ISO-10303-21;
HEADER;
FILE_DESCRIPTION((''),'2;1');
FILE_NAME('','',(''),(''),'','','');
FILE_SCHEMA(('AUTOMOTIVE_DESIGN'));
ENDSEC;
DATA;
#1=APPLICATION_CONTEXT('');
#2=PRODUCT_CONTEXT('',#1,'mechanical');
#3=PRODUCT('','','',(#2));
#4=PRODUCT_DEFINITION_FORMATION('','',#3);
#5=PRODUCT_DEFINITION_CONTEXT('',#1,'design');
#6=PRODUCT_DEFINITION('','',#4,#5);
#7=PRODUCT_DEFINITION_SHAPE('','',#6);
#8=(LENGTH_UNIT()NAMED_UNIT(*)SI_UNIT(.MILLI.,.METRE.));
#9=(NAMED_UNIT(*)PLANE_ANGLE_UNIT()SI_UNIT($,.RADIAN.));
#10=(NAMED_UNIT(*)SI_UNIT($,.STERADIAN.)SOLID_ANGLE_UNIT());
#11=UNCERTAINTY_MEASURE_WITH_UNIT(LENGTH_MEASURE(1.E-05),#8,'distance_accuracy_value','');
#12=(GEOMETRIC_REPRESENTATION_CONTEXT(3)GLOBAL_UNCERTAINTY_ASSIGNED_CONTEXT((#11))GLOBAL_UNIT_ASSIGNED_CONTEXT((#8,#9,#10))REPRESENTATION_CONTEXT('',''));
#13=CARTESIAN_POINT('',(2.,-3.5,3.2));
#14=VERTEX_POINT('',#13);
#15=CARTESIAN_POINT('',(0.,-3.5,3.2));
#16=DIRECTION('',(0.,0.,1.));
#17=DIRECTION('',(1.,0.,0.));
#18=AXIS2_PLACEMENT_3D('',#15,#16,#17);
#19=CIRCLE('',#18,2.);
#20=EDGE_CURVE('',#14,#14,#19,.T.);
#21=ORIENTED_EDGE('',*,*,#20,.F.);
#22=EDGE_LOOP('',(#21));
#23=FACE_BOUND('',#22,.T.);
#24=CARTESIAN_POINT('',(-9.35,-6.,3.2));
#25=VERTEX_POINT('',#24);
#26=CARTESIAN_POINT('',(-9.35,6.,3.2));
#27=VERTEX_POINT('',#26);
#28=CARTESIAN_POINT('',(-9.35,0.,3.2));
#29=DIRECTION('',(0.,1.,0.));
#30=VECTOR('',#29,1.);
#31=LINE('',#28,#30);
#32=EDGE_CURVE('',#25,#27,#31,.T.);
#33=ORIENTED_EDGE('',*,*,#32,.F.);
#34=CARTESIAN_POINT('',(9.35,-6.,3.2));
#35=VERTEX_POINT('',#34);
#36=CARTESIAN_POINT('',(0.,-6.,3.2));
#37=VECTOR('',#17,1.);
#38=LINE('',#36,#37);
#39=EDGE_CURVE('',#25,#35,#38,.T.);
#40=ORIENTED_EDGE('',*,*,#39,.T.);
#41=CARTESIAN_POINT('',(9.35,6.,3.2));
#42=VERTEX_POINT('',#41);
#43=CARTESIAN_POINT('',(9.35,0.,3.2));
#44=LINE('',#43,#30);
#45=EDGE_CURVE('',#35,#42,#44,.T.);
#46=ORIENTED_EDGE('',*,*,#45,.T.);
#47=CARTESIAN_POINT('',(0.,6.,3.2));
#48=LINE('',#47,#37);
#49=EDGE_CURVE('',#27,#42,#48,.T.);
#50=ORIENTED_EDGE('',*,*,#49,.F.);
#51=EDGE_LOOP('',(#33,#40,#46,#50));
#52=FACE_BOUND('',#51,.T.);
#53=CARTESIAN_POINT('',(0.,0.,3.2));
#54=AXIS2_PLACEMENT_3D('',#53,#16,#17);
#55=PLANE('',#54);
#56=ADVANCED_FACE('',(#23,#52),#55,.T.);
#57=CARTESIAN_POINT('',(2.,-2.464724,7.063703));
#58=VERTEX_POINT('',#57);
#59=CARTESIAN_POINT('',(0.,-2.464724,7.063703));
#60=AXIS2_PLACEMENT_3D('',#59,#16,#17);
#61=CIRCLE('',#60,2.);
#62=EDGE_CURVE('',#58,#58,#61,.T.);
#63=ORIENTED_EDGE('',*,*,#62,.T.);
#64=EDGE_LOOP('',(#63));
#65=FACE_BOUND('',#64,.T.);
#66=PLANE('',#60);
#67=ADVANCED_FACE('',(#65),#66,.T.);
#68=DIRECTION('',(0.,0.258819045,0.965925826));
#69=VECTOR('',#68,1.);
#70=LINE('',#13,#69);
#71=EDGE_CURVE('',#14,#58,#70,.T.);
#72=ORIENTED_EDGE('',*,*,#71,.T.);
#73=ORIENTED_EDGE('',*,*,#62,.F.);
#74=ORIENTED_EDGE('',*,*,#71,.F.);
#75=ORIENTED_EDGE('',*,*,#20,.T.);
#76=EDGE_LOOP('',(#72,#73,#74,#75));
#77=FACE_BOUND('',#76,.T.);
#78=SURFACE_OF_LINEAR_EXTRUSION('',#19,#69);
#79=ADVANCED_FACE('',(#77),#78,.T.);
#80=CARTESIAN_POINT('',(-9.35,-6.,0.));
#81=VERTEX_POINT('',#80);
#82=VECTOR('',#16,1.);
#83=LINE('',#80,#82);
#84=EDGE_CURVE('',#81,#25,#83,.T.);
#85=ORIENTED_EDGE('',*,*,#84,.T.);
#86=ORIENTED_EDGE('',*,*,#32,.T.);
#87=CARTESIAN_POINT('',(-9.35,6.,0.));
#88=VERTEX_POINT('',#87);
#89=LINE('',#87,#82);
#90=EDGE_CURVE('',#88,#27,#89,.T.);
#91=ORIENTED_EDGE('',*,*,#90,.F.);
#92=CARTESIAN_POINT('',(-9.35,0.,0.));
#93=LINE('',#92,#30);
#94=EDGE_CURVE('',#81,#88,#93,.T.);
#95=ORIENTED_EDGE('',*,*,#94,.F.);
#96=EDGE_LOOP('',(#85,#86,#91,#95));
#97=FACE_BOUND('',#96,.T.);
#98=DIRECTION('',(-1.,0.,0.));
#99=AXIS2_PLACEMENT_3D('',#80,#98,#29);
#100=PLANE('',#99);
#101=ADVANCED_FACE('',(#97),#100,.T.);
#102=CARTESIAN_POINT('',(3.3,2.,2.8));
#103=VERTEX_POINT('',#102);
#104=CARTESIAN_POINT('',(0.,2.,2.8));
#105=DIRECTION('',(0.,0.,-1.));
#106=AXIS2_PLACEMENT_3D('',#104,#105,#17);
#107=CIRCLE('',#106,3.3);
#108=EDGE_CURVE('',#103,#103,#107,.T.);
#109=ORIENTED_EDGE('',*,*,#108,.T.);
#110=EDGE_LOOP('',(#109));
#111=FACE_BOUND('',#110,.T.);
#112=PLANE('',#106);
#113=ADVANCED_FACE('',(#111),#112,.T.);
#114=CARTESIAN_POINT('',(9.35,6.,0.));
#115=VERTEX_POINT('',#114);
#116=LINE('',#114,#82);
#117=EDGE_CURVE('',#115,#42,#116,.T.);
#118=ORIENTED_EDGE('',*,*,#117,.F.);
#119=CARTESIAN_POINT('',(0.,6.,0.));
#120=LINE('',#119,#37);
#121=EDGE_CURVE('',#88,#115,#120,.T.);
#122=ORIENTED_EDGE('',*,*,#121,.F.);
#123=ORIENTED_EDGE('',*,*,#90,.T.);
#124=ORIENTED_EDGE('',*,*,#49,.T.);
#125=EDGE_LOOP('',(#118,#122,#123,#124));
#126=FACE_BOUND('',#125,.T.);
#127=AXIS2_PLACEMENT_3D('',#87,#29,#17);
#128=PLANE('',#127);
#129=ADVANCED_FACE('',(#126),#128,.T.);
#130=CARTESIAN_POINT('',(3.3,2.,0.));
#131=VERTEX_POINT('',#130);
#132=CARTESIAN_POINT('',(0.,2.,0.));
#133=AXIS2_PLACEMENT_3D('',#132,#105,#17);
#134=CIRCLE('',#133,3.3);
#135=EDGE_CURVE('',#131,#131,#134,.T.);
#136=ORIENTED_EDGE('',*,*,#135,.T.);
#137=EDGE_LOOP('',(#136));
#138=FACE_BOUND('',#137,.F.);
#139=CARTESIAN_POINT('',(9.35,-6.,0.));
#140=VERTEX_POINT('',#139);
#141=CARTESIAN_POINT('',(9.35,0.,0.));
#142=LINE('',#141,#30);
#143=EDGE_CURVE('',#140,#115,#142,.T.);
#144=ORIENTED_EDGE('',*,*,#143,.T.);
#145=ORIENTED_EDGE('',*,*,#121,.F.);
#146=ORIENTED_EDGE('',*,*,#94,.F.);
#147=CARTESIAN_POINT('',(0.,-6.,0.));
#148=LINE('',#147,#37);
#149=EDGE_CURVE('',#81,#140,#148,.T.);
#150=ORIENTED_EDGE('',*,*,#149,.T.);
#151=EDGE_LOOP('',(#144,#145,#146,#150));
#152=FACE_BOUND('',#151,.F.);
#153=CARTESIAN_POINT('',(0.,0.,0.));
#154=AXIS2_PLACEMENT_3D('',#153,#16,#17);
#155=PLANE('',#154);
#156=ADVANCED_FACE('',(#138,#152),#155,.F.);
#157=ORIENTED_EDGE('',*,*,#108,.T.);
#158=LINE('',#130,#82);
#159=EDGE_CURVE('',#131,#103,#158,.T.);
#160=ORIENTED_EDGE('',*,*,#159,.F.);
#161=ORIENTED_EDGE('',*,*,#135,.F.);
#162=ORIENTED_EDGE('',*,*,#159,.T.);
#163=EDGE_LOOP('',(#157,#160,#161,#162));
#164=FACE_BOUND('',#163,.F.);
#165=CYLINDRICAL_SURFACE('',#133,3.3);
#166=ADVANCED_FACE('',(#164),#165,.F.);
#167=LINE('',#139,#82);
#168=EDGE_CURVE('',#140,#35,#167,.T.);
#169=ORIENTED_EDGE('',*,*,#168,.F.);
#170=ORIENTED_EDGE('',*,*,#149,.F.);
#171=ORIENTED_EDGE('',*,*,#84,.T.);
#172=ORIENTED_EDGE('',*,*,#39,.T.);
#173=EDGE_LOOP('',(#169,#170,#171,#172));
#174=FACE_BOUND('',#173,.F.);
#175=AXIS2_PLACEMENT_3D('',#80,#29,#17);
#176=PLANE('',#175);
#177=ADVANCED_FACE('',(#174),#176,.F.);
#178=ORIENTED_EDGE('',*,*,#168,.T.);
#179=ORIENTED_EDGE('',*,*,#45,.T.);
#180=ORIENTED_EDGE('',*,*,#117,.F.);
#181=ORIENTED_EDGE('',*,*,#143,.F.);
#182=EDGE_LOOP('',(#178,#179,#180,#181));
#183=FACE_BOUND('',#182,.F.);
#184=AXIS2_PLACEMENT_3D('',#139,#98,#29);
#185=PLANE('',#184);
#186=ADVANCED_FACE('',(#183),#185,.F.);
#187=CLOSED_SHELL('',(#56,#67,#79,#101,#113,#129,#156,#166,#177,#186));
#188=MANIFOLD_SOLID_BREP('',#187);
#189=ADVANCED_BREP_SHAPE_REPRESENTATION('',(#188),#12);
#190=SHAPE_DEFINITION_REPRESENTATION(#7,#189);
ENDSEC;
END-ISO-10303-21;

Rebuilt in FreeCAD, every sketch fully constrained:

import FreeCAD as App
import Part
import Sketcher


def add_polygon(sketch, points):
    """Adds a closed chain of lines whose ends are joined by coincident constraints."""
    first, n = sketch.GeometryCount, len(points)
    for a, b in zip(points, points[1:] + points[:1]):
        sketch.addGeometry(Part.LineSegment(App.Vector(*a, 0), App.Vector(*b, 0)), False)
    for i in range(n):
        sketch.addConstraint(Sketcher.Constraint("Coincident", first + i, 2, first + (i + 1) % n, 1))

doc = App.newDocument("Part")
body = doc.addObject("PartDesign::Body", "Body")

# Sketch on XY plane
sketch1 = body.newObject("Sketcher::SketchObject", "Sketch")
sketch1.AttachmentSupport = (doc.getObject("XY_Plane"), [""])
sketch1.MapMode = "FlatFace"
add_polygon(sketch1, [(-9, 6), (-9, -6), (9, -6), (9, 6)])  # lines 0-3
sketch1.addConstraint(Sketcher.Constraint("Vertical", 0))
sketch1.addConstraint(Sketcher.Constraint("Horizontal", 1))
sketch1.addConstraint(Sketcher.Constraint("Vertical", 2))
sketch1.addConstraint(Sketcher.Constraint("Horizontal", 3))
sketch1.addConstraint(Sketcher.Constraint("Symmetric", 0, 2, 2, 2, -1, 1))
sketch1.addConstraint(Sketcher.Constraint("DistanceY", 0, 2, 0, 1, 12.0))
sketch1.addConstraint(Sketcher.Constraint("DistanceX", 1, 1, 1, 2, 18.7))
pad1 = body.newObject("PartDesign::Pad", "Pad")
pad1.Profile = sketch1
pad1.Length = 3.2

# Sketch on XY plane
sketch2 = body.newObject("Sketcher::SketchObject", "Sketch001")
sketch2.AttachmentSupport = (doc.getObject("XY_Plane"), [""])
sketch2.MapMode = "FlatFace"
sketch2.addGeometry(Part.Circle(App.Vector(0, 2, 0), App.Vector(0, 0, 1), 3.3), False)
sketch2.addConstraint(Sketcher.Constraint("PointOnObject", 0, 3, -2))
sketch2.addConstraint(Sketcher.Constraint("Diameter", 0, 6.6))
sketch2.addConstraint(Sketcher.Constraint("DistanceY", -1, 1, 0, 3, 2.0))
pocket1 = body.newObject("PartDesign::Pocket", "Pocket")
pocket1.Profile = sketch2
pocket1.Length = 2.8
pocket1.Reversed = True

# Sketch on XY plane
sketch3 = body.newObject("Sketcher::SketchObject", "Sketch002")
sketch3.AttachmentSupport = (doc.getObject("XY_Plane"), [""])
sketch3.MapMode = "FlatFace"
sketch3.AttachmentOffset = App.Placement(App.Vector(0, 0, 3.2), App.Rotation())
sketch3.addGeometry(Part.Circle(App.Vector(0, -3.5, 0), App.Vector(0, 0, 1), 2), False)
sketch3.addConstraint(Sketcher.Constraint("PointOnObject", 0, 3, -2))
sketch3.addConstraint(Sketcher.Constraint("Diameter", 0, 4.0))
sketch3.addConstraint(Sketcher.Constraint("DistanceY", 0, 3, -1, 1, 3.5))

# Sketch on an angled plane
sketch4 = body.newObject("Sketcher::SketchObject", "Sketch003")
sketch4.Placement = App.Placement(App.Vector(0, -4.065544, 1.089359), App.Rotation(App.Vector(0, -0.258819045, -0.965925826), App.Vector(0.999999999, 0, 0), App.Vector(0, -0.965925826, 0.258819045), "ZXY"))
sketch4.addGeometry(Part.LineSegment(App.Vector(-2.2, 0, 0), App.Vector(-6.2, 0, 0)), False)
sketch4.addConstraint(Sketcher.Constraint("Horizontal", 0))
sketch4.addConstraint(Sketcher.Constraint("PointOnObject", 0, 1, -1))
sketch4.addConstraint(Sketcher.Constraint("DistanceX", 0, 2, 0, 1, 4.0))
sketch4.addConstraint(Sketcher.Constraint("DistanceX", 0, 1, -1, 1, 2.185096))
doc.recompute()

additivepipe = body.newObject("PartDesign::AdditivePipe", "AdditivePipe")
additivepipe.Profile = sketch3
additivepipe.Spine = (sketch4, ["Edge1"])

doc.recompute()
